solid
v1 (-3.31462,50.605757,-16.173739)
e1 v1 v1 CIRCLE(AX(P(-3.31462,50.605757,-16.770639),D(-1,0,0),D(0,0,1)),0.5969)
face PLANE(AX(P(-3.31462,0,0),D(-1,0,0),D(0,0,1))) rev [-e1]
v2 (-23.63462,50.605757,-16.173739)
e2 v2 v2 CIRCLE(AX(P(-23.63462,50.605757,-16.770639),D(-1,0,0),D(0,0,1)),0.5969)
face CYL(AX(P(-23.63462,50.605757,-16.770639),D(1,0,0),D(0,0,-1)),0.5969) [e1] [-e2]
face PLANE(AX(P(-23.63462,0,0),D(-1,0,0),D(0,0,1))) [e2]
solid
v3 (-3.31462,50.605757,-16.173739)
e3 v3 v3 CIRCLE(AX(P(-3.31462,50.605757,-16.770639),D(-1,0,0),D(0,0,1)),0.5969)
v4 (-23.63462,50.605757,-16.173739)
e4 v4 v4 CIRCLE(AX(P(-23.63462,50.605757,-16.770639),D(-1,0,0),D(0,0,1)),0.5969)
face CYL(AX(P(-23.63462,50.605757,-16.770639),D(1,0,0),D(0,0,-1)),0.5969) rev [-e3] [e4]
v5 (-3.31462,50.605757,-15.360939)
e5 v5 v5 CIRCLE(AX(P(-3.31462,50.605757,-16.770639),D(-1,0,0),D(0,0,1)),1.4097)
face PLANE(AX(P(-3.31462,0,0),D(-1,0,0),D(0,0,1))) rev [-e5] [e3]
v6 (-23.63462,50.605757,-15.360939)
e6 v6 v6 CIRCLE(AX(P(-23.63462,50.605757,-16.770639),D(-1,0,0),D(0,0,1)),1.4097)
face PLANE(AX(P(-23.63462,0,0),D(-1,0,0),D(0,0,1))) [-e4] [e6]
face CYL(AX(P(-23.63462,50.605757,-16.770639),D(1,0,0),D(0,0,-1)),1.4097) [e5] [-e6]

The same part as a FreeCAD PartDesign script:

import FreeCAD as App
import Part
import Sketcher
from FreeCAD import Vector
Q = App.Units.Quantity

doc = App.newDocument("Part")
body = doc.addObject("PartDesign::Body", "Body")

# Sketch on YZ plane
sketch1 = body.newObject("Sketcher::SketchObject", "Sketch")
sketch1.AttachmentSupport = (doc.getObject("YZ_Plane"), [""])
sketch1.MapMode = "FlatFace"
sketch1.AttachmentOffset = App.Placement(Vector(0, 0, -3.31462), App.Rotation())
sketch1.addGeometry(Part.Circle(Vector(50.605757, -16.770639, 0), Vector(0, 0, 1), 0.5969), False)
sketch1.addConstraint([
    Sketcher.Constraint("Diameter", 0, Q("0.047 in")),
    Sketcher.Constraint("DistanceY", 0, 3, -1, 1, 16.770639),
    Sketcher.Constraint("DistanceX", -1, 1, 0, 3, 50.605757),
])
pad1 = body.newObject("PartDesign::Pad", "Pad")
pad1.Profile = sketch1
pad1.Length = Q("0.8 in")
pad1.Reversed = True
body2 = doc.addObject("PartDesign::Body", "Body001")

# Sketch on YZ plane
sketch2 = body2.newObject("Sketcher::SketchObject", "Sketch001")
sketch2.AttachmentSupport = (doc.getObject("YZ_Plane001"), [""])
sketch2.MapMode = "FlatFace"
sketch2.AttachmentOffset = App.Placement(Vector(0, 0, -3.31462), App.Rotation())
sketch2.addGeometry([
    Part.Circle(Vector(50.605757, -16.770639, 0), Vector(0, 0, 1), 1.4097),
    Part.Circle(Vector(50.605757, -16.770639, 0), Vector(0, 0, 1), 0.5969),
], False)
sketch2.addConstraint([
    Sketcher.Constraint("Coincident", 1, 3, 0, 3),
    Sketcher.Constraint("Diameter", 0, Q("0.111 in")),
    Sketcher.Constraint("Diameter", 1, Q("0.047 in")),
    Sketcher.Constraint("DistanceY", 0, 3, -1, 1, 16.770639),
    Sketcher.Constraint("DistanceX", -1, 1, 0, 3, 50.605757),
])
pad2 = body2.newObject("PartDesign::Pad", "Pad001")
pad2.Profile = sketch2
pad2.Length = Q("0.8 in")
pad2.Reversed = True

doc.recompute()
